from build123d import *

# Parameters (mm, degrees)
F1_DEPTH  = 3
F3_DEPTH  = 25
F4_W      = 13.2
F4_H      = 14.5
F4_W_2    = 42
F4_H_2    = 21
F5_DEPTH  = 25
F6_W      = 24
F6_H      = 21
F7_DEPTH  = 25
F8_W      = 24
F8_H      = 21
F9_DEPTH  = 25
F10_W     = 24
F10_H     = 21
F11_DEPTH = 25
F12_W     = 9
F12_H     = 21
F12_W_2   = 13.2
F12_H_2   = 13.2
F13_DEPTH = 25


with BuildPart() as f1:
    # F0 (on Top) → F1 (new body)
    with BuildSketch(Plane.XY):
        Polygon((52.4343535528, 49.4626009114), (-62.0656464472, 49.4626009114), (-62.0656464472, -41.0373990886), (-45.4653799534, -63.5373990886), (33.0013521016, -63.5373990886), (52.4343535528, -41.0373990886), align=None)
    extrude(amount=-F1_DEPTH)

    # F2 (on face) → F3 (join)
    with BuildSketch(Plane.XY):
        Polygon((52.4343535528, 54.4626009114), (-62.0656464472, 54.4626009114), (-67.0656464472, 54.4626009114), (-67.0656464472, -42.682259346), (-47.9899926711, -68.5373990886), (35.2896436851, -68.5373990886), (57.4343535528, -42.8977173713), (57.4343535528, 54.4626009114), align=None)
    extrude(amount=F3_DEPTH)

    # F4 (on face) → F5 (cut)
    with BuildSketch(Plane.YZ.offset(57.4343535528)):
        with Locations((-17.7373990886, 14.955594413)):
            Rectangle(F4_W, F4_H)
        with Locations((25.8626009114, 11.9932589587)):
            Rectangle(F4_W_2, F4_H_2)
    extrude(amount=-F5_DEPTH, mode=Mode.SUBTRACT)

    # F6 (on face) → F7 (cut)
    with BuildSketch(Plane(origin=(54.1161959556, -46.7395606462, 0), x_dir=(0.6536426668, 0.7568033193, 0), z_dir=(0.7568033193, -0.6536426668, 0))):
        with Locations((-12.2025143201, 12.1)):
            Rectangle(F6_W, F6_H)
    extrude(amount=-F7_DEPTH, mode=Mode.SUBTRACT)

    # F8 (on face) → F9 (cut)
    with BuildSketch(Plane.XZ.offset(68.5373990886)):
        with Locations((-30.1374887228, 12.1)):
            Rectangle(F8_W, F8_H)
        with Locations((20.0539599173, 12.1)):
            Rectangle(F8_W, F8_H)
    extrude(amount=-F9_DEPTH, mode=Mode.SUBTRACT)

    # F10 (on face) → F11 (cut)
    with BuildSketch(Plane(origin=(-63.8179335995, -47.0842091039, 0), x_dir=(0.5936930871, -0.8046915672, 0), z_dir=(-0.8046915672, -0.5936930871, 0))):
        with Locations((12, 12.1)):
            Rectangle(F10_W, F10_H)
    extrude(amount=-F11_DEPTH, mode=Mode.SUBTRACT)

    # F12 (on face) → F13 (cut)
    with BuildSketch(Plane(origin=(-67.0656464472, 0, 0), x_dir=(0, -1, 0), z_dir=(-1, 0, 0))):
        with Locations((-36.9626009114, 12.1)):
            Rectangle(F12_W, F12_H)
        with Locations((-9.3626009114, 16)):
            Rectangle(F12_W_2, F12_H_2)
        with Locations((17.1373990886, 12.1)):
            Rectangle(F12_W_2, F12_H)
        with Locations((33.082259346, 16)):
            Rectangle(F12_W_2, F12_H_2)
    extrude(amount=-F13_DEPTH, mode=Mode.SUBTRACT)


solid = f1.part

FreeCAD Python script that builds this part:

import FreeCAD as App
import Part
import Sketcher

doc = App.newDocument("Part")
body = doc.addObject("PartDesign::Body", "Body")

# Sketch on XY plane
sketch1 = body.newObject("Sketcher::SketchObject", "Sketch")
sketch1.AttachmentSupport = (doc.getObject("XY_Plane"), [""])
sketch1.MapMode = "FlatFace"
sketch1.addGeometry([
    Part.LineSegment(App.Vector(52, 49, 0), App.Vector(-62, 49, 0)),  # 0
    Part.LineSegment(App.Vector(-62, 49, 0), App.Vector(-62, -41, 0)),  # 1
    Part.LineSegment(App.Vector(-62, -41, 0), App.Vector(-45, -64, 0)),  # 2
    Part.LineSegment(App.Vector(-45, -64, 0), App.Vector(33, -64, 0)),  # 3
    Part.LineSegment(App.Vector(33, -64, 0), App.Vector(52, -41, 0)),  # 4
    Part.LineSegment(App.Vector(52, -41, 0), App.Vector(52, 49, 0)),  # 5
], False)
sketch1.addConstraint([
    Sketcher.Constraint("Coincident", 0, 2, 1, 1),
    Sketcher.Constraint("Coincident", 1, 2, 2, 1),
    Sketcher.Constraint("Coincident", 2, 2, 3, 1),
    Sketcher.Constraint("Coincident", 3, 2, 4, 1),
    Sketcher.Constraint("Coincident", 4, 2, 5, 1),
    Sketcher.Constraint("Coincident", 5, 2, 0, 1),
    Sketcher.Constraint("Horizontal", 0),
    Sketcher.Constraint("Vertical", 1),
    Sketcher.Constraint("Horizontal", 3),
    Sketcher.Constraint("Vertical", 5),
    Sketcher.Constraint("Horizontal", 1, 2, 4, 2),
    Sketcher.Constraint("DistanceX", 0, 2, 0, 1, 114.5),
    Sketcher.Constraint("DistanceY", 1, 2, 1, 1, 90.5),
    Sketcher.Constraint("DistanceY", 2, 2, 0, 2, 113.0),
    Sketcher.Constraint("DistanceX", 1, 2, 3, 2, 95.066999),
    Sketcher.Constraint("DistanceY", -1, 1, 0, 2, 49.462601),
    Sketcher.Constraint("DistanceX", 3, 1, 3, 2, 78.466732),
    Sketcher.Constraint("DistanceX", 2, 2, -1, 1, 45.46538),
])
pad1 = body.newObject("PartDesign::Pad", "Pad")
pad1.Profile = sketch1
pad1.Length = 3
pad1.Reversed = True

# Sketch on XY plane
sketch2 = body.newObject("Sketcher::SketchObject", "Sketch001")
sketch2.AttachmentSupport = (doc.getObject("XY_Plane"), [""])
sketch2.MapMode = "FlatFace"
sketch2.addGeometry([
    Part.LineSegment(App.Vector(-67, 54, 0), App.Vector(-67, -43, 0)),  # 0
    Part.LineSegment(App.Vector(-67, -43, 0), App.Vector(-48, -69, 0)),  # 1
    Part.LineSegment(App.Vector(-48, -69, 0), App.Vector(35, -69, 0)),  # 2
    Part.LineSegment(App.Vector(35, -69, 0), App.Vector(57, -43, 0)),  # 3
    Part.LineSegment(App.Vector(57, -43, 0), App.Vector(57, 54, 0)),  # 4
    Part.LineSegment(App.Vector(57, 54, 0), App.Vector(-67, 54, 0)),  # 5
], False)
sketch2.addConstraint([
    Sketcher.Constraint("Coincident", 0, 2, 1, 1),
    Sketcher.Constraint("Coincident", 1, 2, 2, 1),
    Sketcher.Constraint("Coincident", 2, 2, 3, 1),
    Sketcher.Constraint("Coincident", 3, 2, 4, 1),
    Sketcher.Constraint("Coincident", 4, 2, 5, 1),
    Sketcher.Constraint("Coincident", 5, 2, 0, 1),
    Sketcher.Constraint("Vertical", 0),
    Sketcher.Constraint("Horizontal", 2),
    Sketcher.Constraint("Vertical", 4),
    Sketcher.Constraint("Horizontal", 5),
    Sketcher.Constraint("DistanceX", 5, 2, 5, 1, 124.5),
    Sketcher.Constraint("DistanceY", 2, 2, 4, 2, 123.0),
    Sketcher.Constraint("DistanceY", 0, 2, 0, 1, 97.14486),
    Sketcher.Constraint("DistanceY", 4, 1, 4, 2, 97.360318),
    Sketcher.Constraint("DistanceY", 1, 2, -1, 1, 68.537399),
    Sketcher.Constraint("DistanceX", 2, 1, 2, 2, 83.279636),
    Sketcher.Constraint("DistanceX", 0, 2, 2, 2, 102.35529),
    Sketcher.Constraint("DistanceX", 0, 2, -1, 1, 67.065646),
])
pad2 = body.newObject("PartDesign::Pad", "Pad001")
pad2.Profile = sketch2
pad2.Length = 25

# Sketch on YZ plane
sketch3 = body.newObject("Sketcher::SketchObject", "Sketch002")
sketch3.AttachmentSupport = (doc.getObject("YZ_Plane"), [""])
sketch3.MapMode = "FlatFace"
sketch3.AttachmentOffset = App.Placement(App.Vector(0, 0, 57.434354), App.Rotation())
sketch3.addGeometry([
    Part.LineSegment(App.Vector(-24, 22, 0), App.Vector(-24, 8, 0)),  # 0
    Part.LineSegment(App.Vector(-24, 8, 0), App.Vector(-11, 8, 0)),  # 1
    Part.LineSegment(App.Vector(-11, 8, 0), App.Vector(-11, 22, 0)),  # 2
    Part.LineSegment(App.Vector(-11, 22, 0), App.Vector(-24, 22, 0)),  # 3
    Part.LineSegment(App.Vector(5, 22, 0), App.Vector(5, 1, 0)),  # 4
    Part.LineSegment(App.Vector(5, 1, 0), App.Vector(47, 1, 0)),  # 5
    Part.LineSegment(App.Vector(47, 1, 0), App.Vector(47, 22, 0)),  # 6
    Part.LineSegment(App.Vector(47, 22, 0), App.Vector(5, 22, 0)),  # 7
], False)
sketch3.addConstraint([
    Sketcher.Constraint("Coincident", 0, 2, 1, 1),
    Sketcher.Constraint("Coincident", 1, 2, 2, 1),
    Sketcher.Constraint("Coincident", 2, 2, 3, 1),
    Sketcher.Constraint("Coincident", 3, 2, 0, 1),
    Sketcher.Constraint("Coincident", 4, 2, 5, 1),
    Sketcher.Constraint("Coincident", 5, 2, 6, 1),
    Sketcher.Constraint("Coincident", 6, 2, 7, 1),
    Sketcher.Constraint("Coincident", 7, 2, 4, 1),
    Sketcher.Constraint("Vertical", 0),
    Sketcher.Constraint("Horizontal", 1),
    Sketcher.Constraint("Vertical", 2),
    Sketcher.Constraint("Horizontal", 3),
    Sketcher.Constraint("Vertical", 4),
    Sketcher.Constraint("Horizontal", 5),
    Sketcher.Constraint("Vertical", 6),
    Sketcher.Constraint("Horizontal", 7),
    Sketcher.Constraint("DistanceX", 5, 1, 5, 2, 42.0),
    Sketcher.Constraint("DistanceY", 4, 2, 4, 1, 21.0),
    Sketcher.Constraint("DistanceX", 1, 1, 1, 2, 13.2),
    Sketcher.Constraint("DistanceY", 0, 2, 0, 1, 14.5),
    Sketcher.Constraint("DistanceX", 1, 2, 4, 2, 16.0),
    Sketcher.Constraint("DistanceX", 0, 2, -1, 1, 24.337399),
    Sketcher.Constraint("DistanceY", -1, 1, 4, 2, 1.493259),
    Sketcher.Constraint("DistanceY", -1, 1, 0, 2, 7.705594),
])
pocket1 = body.newObject("PartDesign::Pocket", "Pocket")
pocket1.Profile = sketch3
pocket1.Length = 25

# Sketch on an angled plane
sketch4 = body.newObject("Sketcher::SketchObject", "Sketch003")
sketch4.Placement = App.Placement(App.Vector(54.116196, -46.739561, 0), App.Rotation(App.Vector(0.653642667, 0.756803319, 0), App.Vector(0, 0, 1), App.Vector(0.756803319, -0.653642667, 0), "ZXY"))
sketch4.addGeometry([
    Part.LineSegment(App.Vector(-24, 23, 0), App.Vector(-24, 2, 0)),
    Part.LineSegment(App.Vector(-24, 2, 0), App.Vector(0, 2, 0)),
    Part.LineSegment(App.Vector(0, 2, 0), App.Vector(0, 23, 0)),
    Part.LineSegment(App.Vector(0, 23, 0), App.Vector(-24, 23, 0)),
], False)
sketch4.addConstraint([
    Sketcher.Constraint("Coincident", 0, 2, 1, 1),
    Sketcher.Constraint("Coincident", 1, 2, 2, 1),
    Sketcher.Constraint("Coincident", 2, 2, 3, 1),
    Sketcher.Constraint("Coincident", 3, 2, 0, 1),
    Sketcher.Constraint("Vertical", 0),
    Sketcher.Constraint("Horizontal", 1),
    Sketcher.Constraint("Vertical", 2),
    Sketcher.Constraint("Horizontal", 3),
    Sketcher.Constraint("DistanceX", 1, 1, 1, 2, 24.0),
    Sketcher.Constraint("DistanceY", 0, 2, 0, 1, 21.0),
    Sketcher.Constraint("DistanceY", -1, 1, 0, 2, 1.6),
    Sketcher.Constraint("DistanceX", 0, 2, -1, 1, 24.202514),
])
pocket2 = body.newObject("PartDesign::Pocket", "Pocket001")
pocket2.Profile = sketch4
pocket2.Length = 25

# Sketch on XZ plane
sketch5 = body.newObject("Sketcher::SketchObject", "Sketch004")
sketch5.AttachmentSupport = (doc.getObject("XZ_Plane"), [""])
sketch5.MapMode = "FlatFace"
sketch5.AttachmentOffset = App.Placement(App.Vector(0, 0, 68.537399), App.Rotation())
sketch5.addGeometry([
    Part.LineSegment(App.Vector(-42, 23, 0), App.Vector(-42, 2, 0)),  # 0
    Part.LineSegment(App.Vector(-42, 2, 0), App.Vector(-18, 2, 0)),  # 1
    Part.LineSegment(App.Vector(-18, 2, 0), App.Vector(-18, 23, 0)),  # 2
    Part.LineSegment(App.Vector(-18, 23, 0), App.Vector(-42, 23, 0)),  # 3
    Part.LineSegment(App.Vector(8, 23, 0), App.Vector(8, 2, 0)),  # 4
    Part.LineSegment(App.Vector(8, 2, 0), App.Vector(32, 2, 0)),  # 5
    Part.LineSegment(App.Vector(32, 2, 0), App.Vector(32, 23, 0)),  # 6
    Part.LineSegment(App.Vector(32, 23, 0), App.Vector(8, 23, 0)),  # 7
], False)
sketch5.addConstraint([
    Sketcher.Constraint("Coincident", 0, 2, 1, 1),
    Sketcher.Constraint("Coincident", 1, 2, 2, 1),
    Sketcher.Constraint("Coincident", 2, 2, 3, 1),
    Sketcher.Constraint("Coincident", 3, 2, 0, 1),
    Sketcher.Constraint("Coincident", 4, 2, 5, 1),
    Sketcher.Constraint("Coincident", 5, 2, 6, 1),
    Sketcher.Constraint("Coincident", 6, 2, 7, 1),
    Sketcher.Constraint("Coincident", 7, 2, 4, 1),
    Sketcher.Constraint("Vertical", 0),
    Sketcher.Constraint("Horizontal", 1),
    Sketcher.Constraint("Vertical", 2),
    Sketcher.Constraint("Horizontal", 3),
    Sketcher.Constraint("Vertical", 4),
    Sketcher.Constraint("Horizontal", 5),
    Sketcher.Constraint("Vertical", 6),
    Sketcher.Constraint("Horizontal", 7),
    Sketcher.Constraint("Horizontal", 1, 2, 4, 2),
    Sketcher.Constraint("Horizontal", 3, 2, 6, 2),
    Sketcher.Constraint("Equal", 3, 5),
    Sketcher.Constraint("DistanceX", 1, 1, 1, 2, 24.0),
    Sketcher.Constraint("DistanceY", 0, 2, 0, 1, 21.0),
    Sketcher.Constraint("DistanceY", -1, 1, 0, 2, 1.6),
    Sketcher.Constraint("DistanceX", 0, 2, -1, 1, 42.137489),
    Sketcher.Constraint("DistanceX", -1, 1, 4, 2, 8.05396),
])
pocket3 = body.newObject("PartDesign::Pocket", "Pocket002")
pocket3.Profile = sketch5
pocket3.Length = 25

# Sketch on an angled plane
sketch6 = body.newObject("Sketcher::SketchObject", "Sketch005")
sketch6.Placement = App.Placement(App.Vector(-63.817934, -47.084209, 0), App.Rotation(App.Vector(0.593693087, -0.804691567, 0), App.Vector(0, 0, 1), App.Vector(-0.804691567, -0.593693087, 0), "ZXY"))
sketch6.addGeometry([
    Part.LineSegment(App.Vector(0, 23, 0), App.Vector(0, 2, 0)),
    Part.LineSegment(App.Vector(0, 2, 0), App.Vector(24, 2, 0)),
    Part.LineSegment(App.Vector(24, 2, 0), App.Vector(24, 23, 0)),
    Part.LineSegment(App.Vector(24, 23, 0), App.Vector(0, 23, 0)),
], False)
sketch6.addConstraint([
    Sketcher.Constraint("Coincident", 0, 2, 1, 1),
    Sketcher.Constraint("Coincident", 1, 2, 2, 1),
    Sketcher.Constraint("Coincident", 2, 2, 3, 1),
    Sketcher.Constraint("Coincident", 3, 2, 0, 1),
    Sketcher.Constraint("Vertical", 0),
    Sketcher.Constraint("Horizontal", 1),
    Sketcher.Constraint("Vertical", 2),
    Sketcher.Constraint("Horizontal", 3),
    Sketcher.Constraint("PointOnObject", 0, 2, -2),
    Sketcher.Constraint("DistanceX", 1, 1, 1, 2, 24.0),
    Sketcher.Constraint("DistanceY", 0, 2, 0, 1, 21.0),
    Sketcher.Constraint("DistanceY", -1, 1, 0, 2, 1.6),
])
pocket4 = body.newObject("PartDesign::Pocket", "Pocket003")
pocket4.Profile = sketch6
pocket4.Length = 25

# Sketch on YZ plane
sketch7 = body.newObject("Sketcher::SketchObject", "Sketch006")
sketch7.AttachmentSupport = (doc.getObject("YZ_Plane"), [""])
sketch7.MapMode = "FlatFace"
sketch7.AttachmentOffset = App.Placement(App.Vector(0, 0, -67.065646), App.Rotation())
sketch7.addGeometry([
    Part.LineSegment(App.Vector(41, 23, 0), App.Vector(41, 2, 0)),  # 0
    Part.LineSegment(App.Vector(41, 2, 0), App.Vector(32, 2, 0)),  # 1
    Part.LineSegment(App.Vector(32, 2, 0), App.Vector(32, 23, 0)),  # 2
    Part.LineSegment(App.Vector(32, 23, 0), App.Vector(41, 23, 0)),  # 3
    Part.LineSegment(App.Vector(16, 23, 0), App.Vector(16, 9, 0)),  # 4
    Part.LineSegment(App.Vector(16, 9, 0), App.Vector(3, 9, 0)),  # 5
    Part.LineSegment(App.Vector(3, 9, 0), App.Vector(3, 23, 0)),  # 6
    Part.LineSegment(App.Vector(3, 23, 0), App.Vector(16, 23, 0)),  # 7
    Part.LineSegment(App.Vector(-11, 23, 0), App.Vector(-11, 2, 0)),  # 8
    Part.LineSegment(App.Vector(-11, 2, 0), App.Vector(-24, 2, 0)),  # 9
    Part.LineSegment(App.Vector(-24, 2, 0), App.Vector(-24, 23, 0)),  # 10
    Part.LineSegment(App.Vector(-24, 23, 0), App.Vector(-11, 23, 0)),  # 11
    Part.LineSegment(App.Vector(-26, 23, 0), App.Vector(-26, 9, 0)),  # 12
    Part.LineSegment(App.Vector(-26, 9, 0), App.Vector(-40, 9, 0)),  # 13
    Part.LineSegment(App.Vector(-40, 9, 0), App.Vector(-40, 23, 0)),  # 14
    Part.LineSegment(App.Vector(-40, 23, 0), App.Vector(-26, 23, 0)),  # 15
], False)
sketch7.addConstraint([
    Sketcher.Constraint("Coincident", 0, 2, 1, 1),
    Sketcher.Constraint("Coincident", 1, 2, 2, 1),
    Sketcher.Constraint("Coincident", 2, 2, 3, 1),
    Sketcher.Constraint("Coincident", 3, 2, 0, 1),
    Sketcher.Constraint("Coincident", 4, 2, 5, 1),
    Sketcher.Constraint("Coincident", 5, 2, 6, 1),
    Sketcher.Constraint("Coincident", 6, 2, 7, 1),
    Sketcher.Constraint("Coincident", 7, 2, 4, 1),
    Sketcher.Constraint("Coincident", 8, 2, 9, 1),
    Sketcher.Constraint("Coincident", 9, 2, 10, 1),
    Sketcher.Constraint("Coincident", 10, 2, 11, 1),
    Sketcher.Constraint("Coincident", 11, 2, 8, 1),
    Sketcher.Constraint("Coincident", 12, 2, 13, 1),
    Sketcher.Constraint("Coincident", 13, 2, 14, 1),
    Sketcher.Constraint("Coincident", 14, 2, 15, 1),
    Sketcher.Constraint("Coincident", 15, 2, 12, 1),
    Sketcher.Constraint("Vertical", 0),
    Sketcher.Constraint("Horizontal", 1),
    Sketcher.Constraint("Vertical", 2),
    Sketcher.Constraint("Horizontal", 3),
    Sketcher.Constraint("Vertical", 4),
    Sketcher.Constraint("Horizontal", 5),
    Sketcher.Constraint("Vertical", 6),
    Sketcher.Constraint("Horizontal", 7),
    Sketcher.Constraint("Vertical", 8),
    Sketcher.Constraint("Horizontal", 9),
    Sketcher.Constraint("Vertical", 10),
    Sketcher.Constraint("Horizontal", 11),
    Sketcher.Constraint("Vertical", 12),
    Sketcher.Constraint("Horizontal", 13),
    Sketcher.Constraint("Vertical", 14),
    Sketcher.Constraint("Horizontal", 15),
    Sketcher.Constraint("Horizontal", 3, 2, 6, 2),
    Sketcher.Constraint("Horizontal", 1, 2, 8, 2),
    Sketcher.Constraint("Horizontal", 7, 2, 10, 2),
    Sketcher.Constraint("Horizontal", 5, 2, 12, 2),
    Sketcher.Constraint("Horizontal", 11, 2, 14, 2),
    Sketcher.Constraint("Equal", 7, 9),
    Sketcher.Constraint("Equal", 11, 13),
    Sketcher.Constraint("Equal", 15, 4),
    Sketcher.Constraint("DistanceX", 1, 2, 1, 1, 9.0),
    Sketcher.Constraint("DistanceY", 0, 2, 0, 1, 21.0),
    Sketcher.Constraint("DistanceX", 5, 2, 5, 1, 13.2),
    Sketcher.Constraint("DistanceX", 8, 2, 1, 2, 43.0),
    Sketcher.Constraint("DistanceY", -1, 1, 0, 2, 1.6),
    Sketcher.Constraint("DistanceX", 4, 2, 1, 2, 16.5),
    Sketcher.Constraint("DistanceX", -1, 1, 0, 2, 41.462601),
    Sketcher.Constraint("DistanceX", 12, 2, -1, 1, 26.482259),
])
pocket5 = body.newObject("PartDesign::Pocket", "Pocket004")
pocket5.Profile = sketch7
pocket5.Length = 25
pocket5.Reversed = True

doc.recompute()
